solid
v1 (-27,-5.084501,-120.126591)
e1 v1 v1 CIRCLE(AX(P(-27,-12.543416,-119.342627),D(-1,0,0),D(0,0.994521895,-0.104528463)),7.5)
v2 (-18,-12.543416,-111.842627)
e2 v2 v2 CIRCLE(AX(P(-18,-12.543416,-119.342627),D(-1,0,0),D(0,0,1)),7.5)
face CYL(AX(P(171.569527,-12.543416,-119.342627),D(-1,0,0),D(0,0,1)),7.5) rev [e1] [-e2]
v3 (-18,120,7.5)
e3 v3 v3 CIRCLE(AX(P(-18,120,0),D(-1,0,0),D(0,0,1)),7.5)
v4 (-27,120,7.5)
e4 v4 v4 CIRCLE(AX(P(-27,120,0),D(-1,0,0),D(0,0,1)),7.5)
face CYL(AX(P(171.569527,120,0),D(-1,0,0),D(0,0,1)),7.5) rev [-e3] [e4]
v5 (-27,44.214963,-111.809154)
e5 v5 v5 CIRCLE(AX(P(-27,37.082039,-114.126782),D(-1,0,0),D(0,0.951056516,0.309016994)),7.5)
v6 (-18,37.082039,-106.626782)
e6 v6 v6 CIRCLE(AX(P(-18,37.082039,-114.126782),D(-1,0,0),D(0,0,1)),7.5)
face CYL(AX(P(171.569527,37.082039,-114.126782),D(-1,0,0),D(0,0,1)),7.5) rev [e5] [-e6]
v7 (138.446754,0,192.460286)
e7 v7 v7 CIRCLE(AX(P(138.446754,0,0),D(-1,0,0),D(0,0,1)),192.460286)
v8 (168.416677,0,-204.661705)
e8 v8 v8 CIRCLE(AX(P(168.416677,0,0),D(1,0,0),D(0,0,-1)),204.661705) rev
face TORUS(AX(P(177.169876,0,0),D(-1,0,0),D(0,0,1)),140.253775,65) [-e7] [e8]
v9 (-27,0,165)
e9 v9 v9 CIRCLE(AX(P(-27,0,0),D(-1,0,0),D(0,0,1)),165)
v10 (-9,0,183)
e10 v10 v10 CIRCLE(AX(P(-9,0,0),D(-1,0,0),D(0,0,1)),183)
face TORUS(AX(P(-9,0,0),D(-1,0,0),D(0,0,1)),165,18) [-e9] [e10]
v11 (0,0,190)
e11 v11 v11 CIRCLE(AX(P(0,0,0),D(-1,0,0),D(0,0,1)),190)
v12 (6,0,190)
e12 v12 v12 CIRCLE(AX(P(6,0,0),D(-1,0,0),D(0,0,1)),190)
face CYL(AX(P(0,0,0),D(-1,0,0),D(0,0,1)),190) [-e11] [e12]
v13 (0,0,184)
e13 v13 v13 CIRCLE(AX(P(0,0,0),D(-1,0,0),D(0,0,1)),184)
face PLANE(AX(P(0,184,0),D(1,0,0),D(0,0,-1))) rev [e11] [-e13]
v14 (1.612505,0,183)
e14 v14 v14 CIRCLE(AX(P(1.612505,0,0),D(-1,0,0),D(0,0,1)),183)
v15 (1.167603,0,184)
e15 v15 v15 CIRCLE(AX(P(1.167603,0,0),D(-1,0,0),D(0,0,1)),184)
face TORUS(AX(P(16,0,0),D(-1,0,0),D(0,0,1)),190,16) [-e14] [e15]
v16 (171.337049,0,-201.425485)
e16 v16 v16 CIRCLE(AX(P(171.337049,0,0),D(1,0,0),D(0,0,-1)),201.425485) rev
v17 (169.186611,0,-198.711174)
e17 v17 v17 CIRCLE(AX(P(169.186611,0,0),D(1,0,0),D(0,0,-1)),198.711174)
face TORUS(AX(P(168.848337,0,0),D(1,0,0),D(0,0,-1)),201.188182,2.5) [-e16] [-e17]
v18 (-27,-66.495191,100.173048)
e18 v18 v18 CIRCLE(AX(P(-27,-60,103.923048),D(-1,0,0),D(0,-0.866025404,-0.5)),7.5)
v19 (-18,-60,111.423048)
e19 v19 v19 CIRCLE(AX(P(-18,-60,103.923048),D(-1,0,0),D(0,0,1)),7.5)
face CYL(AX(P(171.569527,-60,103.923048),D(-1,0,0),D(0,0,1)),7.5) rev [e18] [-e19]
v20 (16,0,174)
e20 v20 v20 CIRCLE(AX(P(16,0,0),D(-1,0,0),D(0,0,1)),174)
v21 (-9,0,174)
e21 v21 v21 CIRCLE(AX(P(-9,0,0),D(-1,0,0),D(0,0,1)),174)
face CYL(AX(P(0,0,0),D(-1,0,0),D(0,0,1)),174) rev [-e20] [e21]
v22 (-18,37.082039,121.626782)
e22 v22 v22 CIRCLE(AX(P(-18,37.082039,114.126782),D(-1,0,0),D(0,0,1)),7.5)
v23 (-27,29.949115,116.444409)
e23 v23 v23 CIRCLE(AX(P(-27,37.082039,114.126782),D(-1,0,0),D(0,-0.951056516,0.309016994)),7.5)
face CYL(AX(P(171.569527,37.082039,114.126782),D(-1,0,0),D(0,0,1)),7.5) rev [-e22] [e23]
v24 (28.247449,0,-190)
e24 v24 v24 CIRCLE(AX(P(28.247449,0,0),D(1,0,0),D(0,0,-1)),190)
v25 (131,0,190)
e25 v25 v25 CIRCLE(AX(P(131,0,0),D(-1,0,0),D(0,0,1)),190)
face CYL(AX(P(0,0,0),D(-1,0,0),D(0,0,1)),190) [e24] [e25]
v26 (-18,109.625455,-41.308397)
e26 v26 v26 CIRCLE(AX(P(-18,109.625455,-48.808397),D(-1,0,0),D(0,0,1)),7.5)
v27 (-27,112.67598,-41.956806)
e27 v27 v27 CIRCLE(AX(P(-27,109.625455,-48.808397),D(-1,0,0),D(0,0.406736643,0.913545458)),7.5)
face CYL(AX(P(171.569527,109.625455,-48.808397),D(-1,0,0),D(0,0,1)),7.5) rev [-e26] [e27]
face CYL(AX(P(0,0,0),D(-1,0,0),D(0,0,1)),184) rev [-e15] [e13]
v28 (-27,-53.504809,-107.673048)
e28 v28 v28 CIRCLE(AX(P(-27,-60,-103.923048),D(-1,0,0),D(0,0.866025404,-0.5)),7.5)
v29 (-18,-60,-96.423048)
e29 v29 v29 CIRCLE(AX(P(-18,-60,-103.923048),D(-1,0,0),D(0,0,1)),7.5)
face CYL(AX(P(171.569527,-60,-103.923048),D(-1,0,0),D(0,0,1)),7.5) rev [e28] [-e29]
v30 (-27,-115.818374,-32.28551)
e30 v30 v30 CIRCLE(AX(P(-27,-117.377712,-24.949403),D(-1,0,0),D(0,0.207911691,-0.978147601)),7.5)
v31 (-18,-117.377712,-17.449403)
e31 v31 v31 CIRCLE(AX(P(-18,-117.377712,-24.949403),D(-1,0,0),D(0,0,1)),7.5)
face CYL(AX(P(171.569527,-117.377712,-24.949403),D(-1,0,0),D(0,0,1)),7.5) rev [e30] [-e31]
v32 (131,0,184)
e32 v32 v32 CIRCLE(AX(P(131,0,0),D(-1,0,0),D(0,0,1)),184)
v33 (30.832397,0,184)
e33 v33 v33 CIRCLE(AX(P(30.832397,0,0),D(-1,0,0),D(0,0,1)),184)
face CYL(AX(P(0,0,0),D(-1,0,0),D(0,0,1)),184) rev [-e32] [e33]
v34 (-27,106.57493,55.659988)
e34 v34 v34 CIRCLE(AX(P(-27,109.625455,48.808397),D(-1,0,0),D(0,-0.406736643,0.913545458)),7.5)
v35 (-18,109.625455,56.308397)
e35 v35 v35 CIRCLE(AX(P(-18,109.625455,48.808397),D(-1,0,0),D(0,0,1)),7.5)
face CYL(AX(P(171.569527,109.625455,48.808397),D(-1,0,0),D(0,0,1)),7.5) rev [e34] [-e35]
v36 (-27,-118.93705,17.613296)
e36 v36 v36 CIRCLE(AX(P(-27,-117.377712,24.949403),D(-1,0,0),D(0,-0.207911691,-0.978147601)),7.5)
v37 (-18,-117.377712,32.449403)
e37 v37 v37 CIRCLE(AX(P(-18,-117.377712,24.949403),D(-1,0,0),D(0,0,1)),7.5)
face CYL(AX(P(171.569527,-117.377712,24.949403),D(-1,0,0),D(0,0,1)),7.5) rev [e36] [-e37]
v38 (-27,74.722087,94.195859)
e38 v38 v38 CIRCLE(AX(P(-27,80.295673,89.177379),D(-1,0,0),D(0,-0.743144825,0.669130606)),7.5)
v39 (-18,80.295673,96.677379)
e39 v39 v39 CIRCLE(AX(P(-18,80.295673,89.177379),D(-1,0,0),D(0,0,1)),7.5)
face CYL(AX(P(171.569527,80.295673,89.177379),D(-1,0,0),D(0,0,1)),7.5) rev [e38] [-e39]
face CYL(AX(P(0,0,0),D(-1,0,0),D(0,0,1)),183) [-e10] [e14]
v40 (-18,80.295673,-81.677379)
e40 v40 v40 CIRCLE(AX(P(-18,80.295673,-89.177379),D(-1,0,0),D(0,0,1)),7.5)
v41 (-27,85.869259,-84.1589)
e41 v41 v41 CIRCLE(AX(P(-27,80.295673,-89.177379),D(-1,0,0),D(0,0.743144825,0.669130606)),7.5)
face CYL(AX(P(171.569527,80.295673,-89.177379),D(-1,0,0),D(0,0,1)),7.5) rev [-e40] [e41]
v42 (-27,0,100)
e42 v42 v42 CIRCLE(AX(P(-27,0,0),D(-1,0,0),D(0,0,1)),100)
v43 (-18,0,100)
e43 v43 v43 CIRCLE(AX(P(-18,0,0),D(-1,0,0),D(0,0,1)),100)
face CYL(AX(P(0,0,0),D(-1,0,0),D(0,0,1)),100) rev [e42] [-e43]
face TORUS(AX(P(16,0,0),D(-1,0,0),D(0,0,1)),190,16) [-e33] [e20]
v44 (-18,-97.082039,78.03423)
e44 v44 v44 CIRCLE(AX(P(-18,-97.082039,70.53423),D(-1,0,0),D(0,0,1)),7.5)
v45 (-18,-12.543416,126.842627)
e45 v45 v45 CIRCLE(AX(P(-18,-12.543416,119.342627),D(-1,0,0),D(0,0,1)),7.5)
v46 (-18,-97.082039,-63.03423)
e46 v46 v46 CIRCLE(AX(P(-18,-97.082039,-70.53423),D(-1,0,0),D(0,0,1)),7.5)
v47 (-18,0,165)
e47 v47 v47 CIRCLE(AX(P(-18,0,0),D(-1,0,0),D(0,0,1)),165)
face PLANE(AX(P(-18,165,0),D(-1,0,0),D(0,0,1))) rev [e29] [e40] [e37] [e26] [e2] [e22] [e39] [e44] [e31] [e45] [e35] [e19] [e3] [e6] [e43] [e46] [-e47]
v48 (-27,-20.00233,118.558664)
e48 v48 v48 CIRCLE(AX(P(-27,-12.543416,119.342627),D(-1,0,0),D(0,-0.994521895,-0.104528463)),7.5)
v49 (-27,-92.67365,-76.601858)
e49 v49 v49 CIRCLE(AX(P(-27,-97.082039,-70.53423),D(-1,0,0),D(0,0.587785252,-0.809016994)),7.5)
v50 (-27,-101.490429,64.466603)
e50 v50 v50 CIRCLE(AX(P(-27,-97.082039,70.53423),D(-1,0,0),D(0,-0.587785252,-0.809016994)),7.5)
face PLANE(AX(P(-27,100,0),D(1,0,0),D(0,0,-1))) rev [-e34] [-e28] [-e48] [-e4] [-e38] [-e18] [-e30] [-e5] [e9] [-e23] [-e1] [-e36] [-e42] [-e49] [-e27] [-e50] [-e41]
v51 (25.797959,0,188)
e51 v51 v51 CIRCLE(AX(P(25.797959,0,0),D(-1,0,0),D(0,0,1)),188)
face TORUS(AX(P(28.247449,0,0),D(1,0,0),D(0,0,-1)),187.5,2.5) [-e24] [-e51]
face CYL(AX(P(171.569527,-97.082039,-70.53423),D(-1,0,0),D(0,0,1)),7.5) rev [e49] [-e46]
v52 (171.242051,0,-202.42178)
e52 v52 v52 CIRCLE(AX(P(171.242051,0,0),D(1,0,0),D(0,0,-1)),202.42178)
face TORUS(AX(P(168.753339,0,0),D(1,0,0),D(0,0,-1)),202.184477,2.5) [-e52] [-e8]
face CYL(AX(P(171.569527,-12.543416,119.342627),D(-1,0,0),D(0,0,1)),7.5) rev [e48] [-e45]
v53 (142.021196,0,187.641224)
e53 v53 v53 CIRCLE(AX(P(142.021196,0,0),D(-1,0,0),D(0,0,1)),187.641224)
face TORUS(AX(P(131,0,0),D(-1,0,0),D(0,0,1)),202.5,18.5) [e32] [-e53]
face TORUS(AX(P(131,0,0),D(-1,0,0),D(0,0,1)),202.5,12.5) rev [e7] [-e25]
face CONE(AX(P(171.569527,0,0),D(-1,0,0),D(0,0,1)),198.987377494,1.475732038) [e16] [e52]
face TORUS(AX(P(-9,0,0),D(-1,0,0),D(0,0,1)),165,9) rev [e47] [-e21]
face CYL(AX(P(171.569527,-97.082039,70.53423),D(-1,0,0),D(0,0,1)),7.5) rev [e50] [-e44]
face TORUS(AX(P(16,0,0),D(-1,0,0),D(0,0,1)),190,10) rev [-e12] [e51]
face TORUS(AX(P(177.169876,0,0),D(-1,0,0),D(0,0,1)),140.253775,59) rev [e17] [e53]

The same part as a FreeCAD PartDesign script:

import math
import FreeCAD as App
import Part
import Sketcher

V = App.Vector


def edges_at(feature, points):
    """Names of the edges that pass closest to the given points."""
    edges = feature.Shape.Edges
    near = lambda p: min(range(len(edges)), key=lambda i: edges[i].distToShape(Part.Vertex(*p))[0])
    return sorted({f"Edge{near(p) + 1}" for p in points})

doc = App.newDocument("Part")
params = doc.addObject("Spreadsheet::Sheet", "Params")
for row, (alias, value) in enumerate([
    ("sketch1_radius", "10 mm"),
    ("sketch1_radius2", "16 mm"),
    ("sketch1_radius3", "18 mm"),
    ("sketch1_radius4", "9 mm"),
    ("sketch1_radius5", "59 mm"),
    ("revolution_angle", "360 deg"),
    ("sketch2_diameter", "15 mm"),
    ("fillet_radius", "2.5 mm"),
    ("fillet2_radius", "2.5 mm"),
], start=1):
    params.set(f"A{row}", alias)
    params.set(f"B{row}", "=" + value)
    params.setAlias(f"B{row}", alias)

body = doc.addObject("PartDesign::Body", "Body")

sketch1 = body.newObject("Sketcher::SketchObject", "Sketch")
sketch1.AttachmentSupport = (doc.getObject("XY_Plane"), [""])
sketch1.MapMode = "FlatFace"
sketch1.addGeometry([
    Part.LineSegment(V(131, 190, 0), V(26, 190, 0)),
    Part.ArcOfCircle(Part.Circle(V(16, 190, 0), V(0, 0, 1), 10), math.radians(180), math.radians(360)),
    Part.LineSegment(V(6, 190, 0), V(0, 190, 0)),
    Part.LineSegment(V(0, 190, 0), V(0, 184, 0)),
    Part.LineSegment(V(0, 184, 0), V(1.2, 184, 0)),
    Part.ArcOfCircle(Part.Circle(V(16, 190, 0), V(0, 0, 1), 16), math.radians(-157.98), math.radians(-154.06)),
    Part.LineSegment(V(1.6, 183, 0), V(-9, 183, 0)),
    Part.ArcOfCircle(Part.Circle(V(-9, 165, 0), V(0, 0, 1), 18), math.radians(90), math.radians(180)),
    Part.LineSegment(V(-27, 165, 0), V(-27, 100, 0)),
    Part.LineSegment(V(-27, 100, 0), V(-18, 100, 0)),
    Part.LineSegment(V(-18, 100, 0), V(-18, 165, 0)),
    Part.ArcOfCircle(Part.Circle(V(-9, 165, 0), V(0, 0, 1), 9), math.radians(90), math.radians(180)),
    Part.LineSegment(V(-9, 174, 0), V(16, 174, 0)),
    Part.ArcOfCircle(Part.Circle(V(16, 190, 0), V(0, 0, 1), 16), math.radians(-90), math.radians(-22)),
    Part.LineSegment(V(30.8, 184, 0), V(131, 184, 0)),
    Part.ArcOfCircle(Part.Circle(V(131, 202.5, 0), V(0, 0, 1), 18.5), math.radians(-90), math.radians(-53)),
    Part.ArcOfCircle(Part.Circle(V(177.2, 140.3, 0), V(0, 0, 1), 59), math.radians(95), math.radians(127)),
    Part.LineSegment(V(171.6, 199, 0), V(171, 205, 0)),
    Part.ArcOfCircle(Part.Circle(V(177.2, 140.3, 0), V(0, 0, 1), 65), math.radians(95), math.radians(127)),
    Part.ArcOfCircle(Part.Circle(V(131, 202.5, 0), V(0, 0, 1), 12.5), math.radians(-90), math.radians(-53)),
], False)
sketch1.addConstraint([
    Sketcher.Constraint("Coincident", 0, 2, 1, 2),
    Sketcher.Constraint("Coincident", 1, 1, 2, 1),
    Sketcher.Constraint("Coincident", 2, 2, 3, 1),
    Sketcher.Constraint("Coincident", 3, 2, 4, 1),
    Sketcher.Constraint("Coincident", 4, 2, 5, 1),
    Sketcher.Constraint("Coincident", 5, 2, 6, 1),
    Sketcher.Constraint("Tangent", 6, 2, 7, 1),
    Sketcher.Constraint("Tangent", 7, 2, 8, 1),
    Sketcher.Constraint("Coincident", 8, 2, 9, 1),
    Sketcher.Constraint("Coincident", 9, 2, 10, 1),
    Sketcher.Constraint("Tangent", 10, 2, 11, 2),
    Sketcher.Constraint("Tangent", 11, 1, 12, 1),
    Sketcher.Constraint("Tangent", 12, 2, 13, 1),
    Sketcher.Constraint("Coincident", 13, 2, 14, 1),
    Sketcher.Constraint("Tangent", 14, 2, 15, 1),
    Sketcher.Constraint("Tangent", 15, 2, 16, 2),
    Sketcher.Constraint("Coincident", 16, 1, 17, 1),
    Sketcher.Constraint("Coincident", 17, 2, 18, 1),
    Sketcher.Constraint("Tangent", 18, 2, 19, 2),
    Sketcher.Constraint("Tangent", 19, 1, 0, 1),
    Sketcher.Constraint("Horizontal", 0),
    Sketcher.Constraint("Horizontal", 2),
    Sketcher.Constraint("Vertical", 3),
    Sketcher.Constraint("Horizontal", 4),
    Sketcher.Constraint("Horizontal", 6),
    Sketcher.Constraint("Vertical", 8),
    Sketcher.Constraint("Horizontal", 9),
    Sketcher.Constraint("Vertical", 10),
    Sketcher.Constraint("Horizontal", 12),
    Sketcher.Constraint("Horizontal", 14),
    Sketcher.Constraint("Coincident", 5, 3, 1, 3),
    Sketcher.Constraint("Coincident", 11, 3, 7, 3),
    Sketcher.Constraint("Coincident", 13, 3, 1, 3),
    Sketcher.Constraint("Coincident", 18, 3, 16, 3),
    Sketcher.Constraint("Coincident", 19, 3, 15, 3),
    Sketcher.Constraint("Equal", 5, 13),
    Sketcher.Constraint("PointOnObject", 2, 2, -2),
    Sketcher.Constraint("Horizontal", 13, 3, 0, 2),
    Sketcher.Constraint("Horizontal", 0, 2, 1, 1),
    Sketcher.Constraint("Horizontal", 4, 2, 13, 2),
    Sketcher.Constraint("Equal", 2, 3),
    Sketcher.Constraint("Radius", 1, 10.0),
    Sketcher.Constraint("Radius", 5, 16.0),
    Sketcher.Constraint("Radius", 7, 18.0),
    Sketcher.Constraint("Radius", 11, 9.0),
    Sketcher.Constraint("Radius", 16, 59.0),
    Sketcher.Constraint("Radius", 18, 65.0),
    Sketcher.Constraint("Radius", 15, 18.5),
    Sketcher.Constraint("DistanceX", 0, 2, 0, 1, 105.0),
    Sketcher.Constraint("DistanceX", 12, 1, 12, 2, 25.0),
    Sketcher.Constraint("DistanceY", 8, 2, 8, 1, 65.0),
    Sketcher.Constraint("DistanceY", -1, 1, 1, 3, 190.0),
    Sketcher.Constraint("DistanceX", -1, 1, 17, 2, 171.0),
    Sketcher.Constraint("DistanceX", 15, 2, 16, 3, 35.14868),
    Sketcher.Constraint("DistanceX", 15, 2, 16, 1, 29.548331),
])
sketch1.setExpression("Constraints[41]", "Params.sketch1_radius")
sketch1.setExpression("Constraints[42]", "Params.sketch1_radius2")
sketch1.setExpression("Constraints[43]", "Params.sketch1_radius3")
sketch1.setExpression("Constraints[44]", "Params.sketch1_radius4")
sketch1.setExpression("Constraints[45]", "Params.sketch1_radius5")
revolution = body.newObject("PartDesign::Revolution", "Revolution")
revolution.Profile = sketch1
revolution.ReferenceAxis = (sketch1, ["H_Axis"])
revolution.setExpression("Angle", "Params.revolution_angle")

sketch2 = body.newObject("Sketcher::SketchObject", "Sketch001")
sketch2.AttachmentSupport = (doc.getObject("YZ_Plane"), [""])
sketch2.MapMode = "FlatFace"
sketch2.AttachmentOffset = App.Placement(V(0, 0, -27), App.Rotation())
sketch2.addGeometry(Part.Circle(V(120, 0, 0), V(0, 0, 1), 8), False)
sketch2.addConstraint([
    Sketcher.Constraint("PointOnObject", 0, 3, -1),
    Sketcher.Constraint("Diameter", 0, 15.0),
    Sketcher.Constraint("DistanceX", -1, 1, 0, 3, 120.0),
])
sketch2.setExpression("Constraints[1]", "Params.sketch2_diameter")
pocket1 = body.newObject("PartDesign::Pocket", "Pocket")
pocket1.Profile = sketch2
pocket1.Type = "ThroughAll"
pocket1.Reversed = True
doc.recompute()

polarpattern = body.newObject("PartDesign::PolarPattern", "PolarPattern")
polarpattern.Originals = [pocket1]
polarpattern.Axis = (doc.getObject("X_Axis"), [""])
polarpattern.Angle = 360
polarpattern.Occurrences = 15
body.Tip = polarpattern
doc.recompute()

fillet = body.newObject("PartDesign::Fillet", "Fillet")
fillet.Base = (polarpattern, edges_at(polarpattern, [(171, 0, -204.96), (171.57, 0, -198.987)]))
fillet.setExpression("Radius", "Params.fillet_radius")
doc.recompute()

fillet2 = body.newObject("PartDesign::Fillet", "Fillet001")
fillet2.Base = (fillet, edges_at(fillet, [(26, 0, -190)]))
fillet2.setExpression("Radius", "Params.fillet2_radius")

doc.recompute()
